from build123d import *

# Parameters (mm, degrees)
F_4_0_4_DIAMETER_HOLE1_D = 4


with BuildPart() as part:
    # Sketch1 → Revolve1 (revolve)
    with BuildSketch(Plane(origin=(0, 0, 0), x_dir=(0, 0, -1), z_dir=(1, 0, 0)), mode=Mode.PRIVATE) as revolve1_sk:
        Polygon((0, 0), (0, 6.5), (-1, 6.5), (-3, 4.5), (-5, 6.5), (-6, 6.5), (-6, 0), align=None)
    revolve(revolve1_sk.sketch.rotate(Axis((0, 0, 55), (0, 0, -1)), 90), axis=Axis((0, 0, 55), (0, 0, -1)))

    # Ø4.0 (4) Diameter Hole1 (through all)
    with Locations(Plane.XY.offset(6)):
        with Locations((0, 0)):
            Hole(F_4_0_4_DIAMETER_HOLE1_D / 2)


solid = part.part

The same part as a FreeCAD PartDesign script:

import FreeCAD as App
import Part
import Sketcher
from FreeCAD import Vector

doc = App.newDocument("Part")
body = doc.addObject("PartDesign::Body", "Body")

sketch1 = body.newObject("Sketcher::SketchObject", "Sketch")
sketch1.AttachmentSupport = (doc.getObject("YZ_Plane"), [""])
sketch1.MapMode = "FlatFace"
sketch1.addGeometry(Part.LineSegment(Vector(0, 0, 0), Vector(6.5, 0, 0)), False)
sketch1.addGeometry(Part.LineSegment(Vector(6.5, 0, 0), Vector(6.5, 1, 0)), False)
sketch1.addGeometry(Part.LineSegment(Vector(6.5, 1, 0), Vector(4.5, 3, 0)), False)
sketch1.addGeometry(Part.LineSegment(Vector(4.5, 3, 0), Vector(6.5, 5, 0)), False)
sketch1.addGeometry(Part.LineSegment(Vector(6.5, 5, 0), Vector(6.5, 6, 0)), False)
sketch1.addGeometry(Part.LineSegment(Vector(6.5, 6, 0), Vector(0, 6, 0)), False)
sketch1.addGeometry(Part.LineSegment(Vector(0, 6, 0), Vector(0, 0, 0)), False)
sketch1.addConstraint(Sketcher.Constraint("Coincident", 0, 2, 1, 1))
sketch1.addConstraint(Sketcher.Constraint("Coincident", 1, 2, 2, 1))
sketch1.addConstraint(Sketcher.Constraint("Coincident", 2, 2, 3, 1))
sketch1.addConstraint(Sketcher.Constraint("Coincident", 3, 2, 4, 1))
sketch1.addConstraint(Sketcher.Constraint("Coincident", 4, 2, 5, 1))
sketch1.addConstraint(Sketcher.Constraint("Coincident", 5, 2, 6, 1))
sketch1.addConstraint(Sketcher.Constraint("Coincident", 6, 2, 0, 1))
sketch1.addConstraint(Sketcher.Constraint("Horizontal", 0))
sketch1.addConstraint(Sketcher.Constraint("Vertical", 1))
sketch1.addConstraint(Sketcher.Constraint("Vertical", 4))
sketch1.addConstraint(Sketcher.Constraint("Horizontal", 5))
sketch1.addConstraint(Sketcher.Constraint("Vertical", 6))
sketch1.addConstraint(Sketcher.Constraint("Coincident", 6, 2, -1, 1))
sketch1.addConstraint(Sketcher.Constraint("Perpendicular", 2, 3))
sketch1.addConstraint(Sketcher.Constraint("Vertical", 1, 2, 3, 2))
sketch1.addConstraint(Sketcher.Constraint("Equal", 1, 4))
sketch1.addConstraint(Sketcher.Constraint("Equal", 2, 3))
sketch1.addConstraint(Sketcher.Constraint("DistanceY", 1, 1, 1, 2, 1.0))
sketch1.addConstraint(Sketcher.Constraint("DistanceY", 6, 2, 6, 1, 6.0))
sketch1.addConstraint(Sketcher.Constraint("DistanceX", 0, 1, 0, 2, 6.5))
revolution = body.newObject("PartDesign::Revolution", "Revolution")
revolution.Profile = sketch1
revolution.ReferenceAxis = (sketch1, ["V_Axis"])
revolution.Angle = 360

sketch2 = body.newObject("Sketcher::SketchObject", "Sketch001")
sketch2.AttachmentSupport = (doc.getObject("XY_Plane"), [""])
sketch2.MapMode = "FlatFace"
sketch2.AttachmentOffset = App.Placement(Vector(0, 0, 6), App.Rotation())
sketch2.addGeometry(Part.Circle(Vector(0, 0, 0), Vector(0, 0, 1), 2), False)
sketch2.addConstraint(Sketcher.Constraint("Coincident", 0, 3, -1, 1))
sketch2.addConstraint(Sketcher.Constraint("Diameter", 0, 4.0))
doc.recompute()
hole = body.newObject("PartDesign::Hole", "Hole")
hole.Profile = sketch2
hole.ThreadType = "None"
hole.Diameter = 4
hole.DepthType = "ThroughAll"

doc.recompute()
